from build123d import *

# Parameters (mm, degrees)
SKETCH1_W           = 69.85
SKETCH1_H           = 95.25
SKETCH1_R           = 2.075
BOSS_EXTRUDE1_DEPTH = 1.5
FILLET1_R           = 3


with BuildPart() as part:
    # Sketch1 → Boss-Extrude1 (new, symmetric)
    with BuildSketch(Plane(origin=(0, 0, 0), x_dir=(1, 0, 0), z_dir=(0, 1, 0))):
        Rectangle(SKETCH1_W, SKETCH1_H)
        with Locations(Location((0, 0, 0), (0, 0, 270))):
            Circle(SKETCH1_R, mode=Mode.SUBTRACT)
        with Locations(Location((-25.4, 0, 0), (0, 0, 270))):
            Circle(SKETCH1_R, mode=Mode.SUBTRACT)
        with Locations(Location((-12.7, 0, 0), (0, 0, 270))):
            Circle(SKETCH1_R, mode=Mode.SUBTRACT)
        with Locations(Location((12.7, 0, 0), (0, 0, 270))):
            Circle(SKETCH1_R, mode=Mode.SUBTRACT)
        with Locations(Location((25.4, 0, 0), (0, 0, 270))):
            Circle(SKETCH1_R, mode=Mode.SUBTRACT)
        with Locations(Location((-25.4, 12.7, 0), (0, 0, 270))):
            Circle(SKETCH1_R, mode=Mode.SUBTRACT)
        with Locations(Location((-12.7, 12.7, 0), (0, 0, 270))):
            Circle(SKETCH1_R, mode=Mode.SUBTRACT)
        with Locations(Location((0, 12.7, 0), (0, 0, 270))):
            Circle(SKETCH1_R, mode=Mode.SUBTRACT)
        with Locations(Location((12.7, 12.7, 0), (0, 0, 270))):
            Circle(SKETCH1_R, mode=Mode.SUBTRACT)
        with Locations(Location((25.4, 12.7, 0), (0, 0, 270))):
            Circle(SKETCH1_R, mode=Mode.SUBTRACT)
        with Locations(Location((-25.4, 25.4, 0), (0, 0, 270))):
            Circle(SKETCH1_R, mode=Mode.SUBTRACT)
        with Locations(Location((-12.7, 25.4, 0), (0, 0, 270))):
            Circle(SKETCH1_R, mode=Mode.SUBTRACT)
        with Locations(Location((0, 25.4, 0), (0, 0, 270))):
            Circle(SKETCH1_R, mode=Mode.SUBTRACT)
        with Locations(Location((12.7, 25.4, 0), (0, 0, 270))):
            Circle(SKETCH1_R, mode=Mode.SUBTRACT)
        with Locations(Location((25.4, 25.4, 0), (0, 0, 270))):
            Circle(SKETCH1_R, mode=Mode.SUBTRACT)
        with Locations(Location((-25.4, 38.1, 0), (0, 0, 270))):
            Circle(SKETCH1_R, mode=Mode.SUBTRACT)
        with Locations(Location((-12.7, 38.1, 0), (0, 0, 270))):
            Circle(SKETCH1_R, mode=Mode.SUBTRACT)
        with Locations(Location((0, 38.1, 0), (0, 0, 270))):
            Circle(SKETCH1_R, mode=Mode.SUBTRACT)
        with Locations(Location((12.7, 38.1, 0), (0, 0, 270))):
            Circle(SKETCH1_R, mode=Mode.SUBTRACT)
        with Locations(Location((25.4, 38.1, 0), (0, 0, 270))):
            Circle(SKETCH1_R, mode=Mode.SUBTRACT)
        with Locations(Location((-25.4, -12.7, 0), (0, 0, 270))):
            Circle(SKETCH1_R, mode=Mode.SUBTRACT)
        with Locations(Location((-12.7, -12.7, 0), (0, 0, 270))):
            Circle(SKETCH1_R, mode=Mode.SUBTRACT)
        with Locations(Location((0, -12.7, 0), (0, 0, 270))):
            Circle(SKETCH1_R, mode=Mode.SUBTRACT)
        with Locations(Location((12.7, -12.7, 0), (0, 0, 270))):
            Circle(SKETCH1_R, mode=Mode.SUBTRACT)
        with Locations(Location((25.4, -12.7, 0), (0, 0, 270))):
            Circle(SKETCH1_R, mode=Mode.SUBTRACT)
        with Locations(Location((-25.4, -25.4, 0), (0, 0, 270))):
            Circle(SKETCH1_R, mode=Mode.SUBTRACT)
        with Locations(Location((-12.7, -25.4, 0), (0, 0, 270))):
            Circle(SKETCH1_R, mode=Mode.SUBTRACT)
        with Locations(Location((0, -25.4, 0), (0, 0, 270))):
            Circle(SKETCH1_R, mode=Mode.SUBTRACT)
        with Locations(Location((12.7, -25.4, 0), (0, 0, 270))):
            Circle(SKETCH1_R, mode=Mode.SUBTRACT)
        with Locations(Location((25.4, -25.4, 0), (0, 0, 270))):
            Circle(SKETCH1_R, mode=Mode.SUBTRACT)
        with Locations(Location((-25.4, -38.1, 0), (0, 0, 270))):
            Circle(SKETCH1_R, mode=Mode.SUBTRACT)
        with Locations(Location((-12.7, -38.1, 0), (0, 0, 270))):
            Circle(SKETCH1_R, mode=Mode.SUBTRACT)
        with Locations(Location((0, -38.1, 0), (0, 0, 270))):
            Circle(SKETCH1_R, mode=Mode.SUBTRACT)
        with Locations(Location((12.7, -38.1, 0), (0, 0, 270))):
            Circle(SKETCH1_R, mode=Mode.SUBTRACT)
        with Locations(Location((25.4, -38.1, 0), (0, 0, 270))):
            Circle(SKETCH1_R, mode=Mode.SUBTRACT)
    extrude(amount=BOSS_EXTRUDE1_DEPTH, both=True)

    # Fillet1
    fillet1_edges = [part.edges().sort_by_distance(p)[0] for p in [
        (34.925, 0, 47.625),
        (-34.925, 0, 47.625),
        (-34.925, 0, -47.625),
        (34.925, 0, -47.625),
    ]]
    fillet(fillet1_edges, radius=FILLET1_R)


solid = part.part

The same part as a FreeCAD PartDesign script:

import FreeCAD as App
import Part
import Sketcher
from FreeCAD import Vector


def edges_at(feature, points):
    """Names of the edges that pass closest to the given points."""
    edges = feature.Shape.Edges
    near = lambda p: min(range(len(edges)), key=lambda i: edges[i].distToShape(Part.Vertex(*p))[0])
    return sorted({f"Edge{near(p) + 1}" for p in points})

doc = App.newDocument("Part")
body = doc.addObject("PartDesign::Body", "Body")

# Sketch on XZ plane
sketch1 = doc.addObject("Sketcher::SketchObject", "Sketch")
body.addObject(sketch1)
sketch1.AttachmentSupport = (doc.XZ_Plane, [""])
sketch1.MapMode = "FlatFace"
sketch1.addGeometry([
    Part.LineSegment(Vector(-34.9, -47.6, 0), Vector(-34.9, 47.6, 0)),  # 0
    Part.LineSegment(Vector(-34.9, 47.6, 0), Vector(34.9, 47.6, 0)),  # 1
    Part.LineSegment(Vector(34.9, 47.6, 0), Vector(34.9, -47.6, 0)),  # 2
    Part.LineSegment(Vector(34.9, -47.6, 0), Vector(-34.9, -47.6, 0)),  # 3
    Part.Circle(Vector(-25.4, 38.1, 0), Vector(0, 0, 1), 2.1),  # 4
    Part.Circle(Vector(-25.4, 25.4, 0), Vector(0, 0, 1), 2.1),  # 5
    Part.Circle(Vector(-12.7, 38.1, 0), Vector(0, 0, 1), 2.1),  # 6
    Part.Circle(Vector(-12.7, 25.4, 0), Vector(0, 0, 1), 2.1),  # 7
    Part.Circle(Vector(-25.4, 12.7, 0), Vector(0, 0, 1), 2.1),  # 8
    Part.Circle(Vector(-12.7, 12.7, 0), Vector(0, 0, 1), 2.1),  # 9
    Part.Circle(Vector(0, 38.1, 0), Vector(0, 0, 1), 2.1),  # 10
    Part.Circle(Vector(12.7, 38.1, 0), Vector(0, 0, 1), 2.1),  # 11
    Part.Circle(Vector(0, 25.4, 0), Vector(0, 0, 1), 2.1),  # 12
    Part.Circle(Vector(12.7, 25.4, 0), Vector(0, 0, 1), 2.1),  # 13
    Part.Circle(Vector(25.4, 38.1, 0), Vector(0, 0, 1), 2.1),  # 14
    Part.Circle(Vector(25.4, 25.4, 0), Vector(0, 0, 1), 2.1),  # 15
    Part.Circle(Vector(0, 12.7, 0), Vector(0, 0, 1), 2.1),  # 16
    Part.Circle(Vector(12.7, 12.7, 0), Vector(0, 0, 1), 2.1),  # 17
    Part.Circle(Vector(25.4, 12.7, 0), Vector(0, 0, 1), 2.1),  # 18
    Part.Circle(Vector(-25.4, 0, 0), Vector(0, 0, 1), 2.1),  # 19
    Part.Circle(Vector(-25.4, -12.7, 0), Vector(0, 0, 1), 2.1),  # 20
    Part.Circle(Vector(-12.7, 0, 0), Vector(0, 0, 1), 2.1),  # 21
    Part.Circle(Vector(-12.7, -12.7, 0), Vector(0, 0, 1), 2.1),  # 22
    Part.Circle(Vector(-25.4, -25.4, 0), Vector(0, 0, 1), 2.1),  # 23
    Part.Circle(Vector(-25.4, -38.1, 0), Vector(0, 0, 1), 2.1),  # 24
    Part.Circle(Vector(-12.7, -25.4, 0), Vector(0, 0, 1), 2.1),  # 25
    Part.Circle(Vector(-12.7, -38.1, 0), Vector(0, 0, 1), 2.1),  # 26
    Part.Circle(Vector(0, 0, 0), Vector(0, 0, 1), 2.1),  # 27
    Part.Circle(Vector(12.7, 0, 0), Vector(0, 0, 1), 2.1),  # 28
    Part.Circle(Vector(0, -12.7, 0), Vector(0, 0, 1), 2.1),  # 29
    Part.Circle(Vector(12.7, -12.7, 0), Vector(0, 0, 1), 2.1),  # 30
    Part.Circle(Vector(25.4, 0, 0), Vector(0, 0, 1), 2.1),  # 31
    Part.Circle(Vector(25.4, -12.7, 0), Vector(0, 0, 1), 2.1),  # 32
    Part.Circle(Vector(0, -25.4, 0), Vector(0, 0, 1), 2.1),  # 33
    Part.Circle(Vector(12.7, -25.4, 0), Vector(0, 0, 1), 2.1),  # 34
    Part.Circle(Vector(0, -38.1, 0), Vector(0, 0, 1), 2.1),  # 35
    Part.Circle(Vector(12.7, -38.1, 0), Vector(0, 0, 1), 2.1),  # 36
    Part.Circle(Vector(25.4, -25.4, 0), Vector(0, 0, 1), 2.1),  # 37
    Part.Circle(Vector(25.4, -38.1, 0), Vector(0, 0, 1), 2.1),  # 38
], False)
sketch1.addConstraint([
    Sketcher.Constraint("Coincident", 0, 2, 1, 1),
    Sketcher.Constraint("Coincident", 1, 2, 2, 1),
    Sketcher.Constraint("Coincident", 2, 2, 3, 1),
    Sketcher.Constraint("Coincident", 3, 2, 0, 1),
    Sketcher.Constraint("Vertical", 0),
    Sketcher.Constraint("Horizontal", 1),
    Sketcher.Constraint("Vertical", 2),
    Sketcher.Constraint("Horizontal", 3),
    Sketcher.Constraint("Coincident", 27, 3, -1, 1),
    Sketcher.Constraint("Equal", 4, 5),
    Sketcher.Constraint("Equal", 5, 6),
    Sketcher.Constraint("Equal", 6, 7),
    Sketcher.Constraint("Equal", 7, 8),
    Sketcher.Constraint("Equal", 8, 9),
    Sketcher.Constraint("Equal", 9, 10),
    Sketcher.Constraint("Equal", 10, 11),
    Sketcher.Constraint("Equal", 11, 12),
    Sketcher.Constraint("Equal", 12, 13),
    Sketcher.Constraint("Equal", 13, 14),
    Sketcher.Constraint("Equal", 14, 15),
    Sketcher.Constraint("Equal", 15, 16),
    Sketcher.Constraint("Equal", 16, 17),
    Sketcher.Constraint("Equal", 17, 18),
    Sketcher.Constraint("Equal", 18, 19),
    Sketcher.Constraint("Equal", 19, 20),
    Sketcher.Constraint("Equal", 20, 21),
    Sketcher.Constraint("Equal", 21, 22),
    Sketcher.Constraint("Equal", 22, 23),
    Sketcher.Constraint("Equal", 23, 24),
    Sketcher.Constraint("Equal", 24, 25),
    Sketcher.Constraint("Equal", 25, 26),
    Sketcher.Constraint("Equal", 26, 27),
    Sketcher.Constraint("Equal", 27, 28),
    Sketcher.Constraint("Equal", 28, 29),
    Sketcher.Constraint("Equal", 29, 30),
    Sketcher.Constraint("Equal", 30, 31),
    Sketcher.Constraint("Equal", 31, 32),
    Sketcher.Constraint("Equal", 32, 33),
    Sketcher.Constraint("Equal", 33, 34),
    Sketcher.Constraint("Equal", 34, 35),
    Sketcher.Constraint("Equal", 35, 36),
    Sketcher.Constraint("Equal", 36, 37),
    Sketcher.Constraint("Equal", 37, 38),
    Sketcher.Constraint("Symmetric", 18, 3, 20, 3, -1, 1),
    Sketcher.Constraint("Symmetric", 17, 3, 22, 3, -1, 1),
    Sketcher.Constraint("Symmetric", 15, 3, 23, 3, -1, 1),
    Sketcher.Constraint("Symmetric", 14, 3, 24, 3, -1, 1),
    Sketcher.Constraint("Symmetric", 13, 3, 25, 3, -1, 1),
    Sketcher.Constraint("Symmetric", 11, 3, 26, 3, -1, 1),
    Sketcher.Constraint("Symmetric", 21, 3, 28, 3, -1, 1),
    Sketcher.Constraint("Symmetric", 16, 3, 29, 3, -1, 1),
    Sketcher.Constraint("Symmetric", 9, 3, 30, 3, -1, 1),
    Sketcher.Constraint("Symmetric", 19, 3, 31, 3, -1, 1),
    Sketcher.Constraint("Symmetric", 8, 3, 32, 3, -1, 1),
    Sketcher.Constraint("Symmetric", 12, 3, 33, 3, -1, 1),
    Sketcher.Constraint("Symmetric", 7, 3, 34, 3, -1, 1),
    Sketcher.Constraint("Symmetric", 10, 3, 35, 3, -1, 1),
    Sketcher.Constraint("Symmetric", 6, 3, 36, 3, -1, 1),
    Sketcher.Constraint("Symmetric", 5, 3, 37, 3, -1, 1),
    Sketcher.Constraint("Symmetric", 4, 3, 38, 3, -1, 1),
    Sketcher.Constraint("Symmetric", 0, 2, 2, 2, -1, 1),
    Sketcher.Constraint("Symmetric", 6, 3, 11, 3, -2),
    Sketcher.Constraint("Symmetric", 7, 3, 13, 3, -2),
    Sketcher.Constraint("Symmetric", 4, 3, 14, 3, -2),
    Sketcher.Constraint("Symmetric", 5, 3, 15, 3, -2),
    Sketcher.Constraint("Symmetric", 9, 3, 17, 3, -2),
    Sketcher.Constraint("Symmetric", 8, 3, 18, 3, -2),
    Sketcher.Constraint("PointOnObject", 10, 3, -2),
    Sketcher.Constraint("PointOnObject", 12, 3, -2),
    Sketcher.Constraint("PointOnObject", 16, 3, -2),
    Sketcher.Constraint("PointOnObject", 19, 3, -1),
    Sketcher.Constraint("PointOnObject", 21, 3, -1),
    Sketcher.Constraint("Horizontal", 4, 3, 6, 3),
    Sketcher.Constraint("Horizontal", 5, 3, 7, 3),
    Sketcher.Constraint("Horizontal", 8, 3, 9, 3),
    Sketcher.Constraint("Horizontal", 6, 3, 10, 3),
    Sketcher.Constraint("Horizontal", 7, 3, 12, 3),
    Sketcher.Constraint("Horizontal", 9, 3, 16, 3),
    Sketcher.Constraint("Vertical", 4, 3, 5, 3),
    Sketcher.Constraint("Vertical", 6, 3, 7, 3),
    Sketcher.Constraint("Vertical", 5, 3, 8, 3),
    Sketcher.Constraint("Vertical", 7, 3, 9, 3),
    Sketcher.Constraint("Vertical", 8, 3, 19, 3),
    Sketcher.Constraint("Vertical", 9, 3, 21, 3),
    Sketcher.Constraint("Diameter", 4, 4.15),
    Sketcher.Constraint("DistanceX", 1, 1, 1, 2, 69.85),
    Sketcher.Constraint("DistanceY", 0, 1, 0, 2, 95.25),
    Sketcher.Constraint("DistanceX", 4, 3, -1, 1, 25.4),
    Sketcher.Constraint("DistanceY", -1, 1, 4, 3, 38.1),
    Sketcher.Constraint("DistanceY", -1, 1, 5, 3, 25.4),
    Sketcher.Constraint("DistanceX", 6, 3, -1, 1, 12.7),
    Sketcher.Constraint("DistanceY", -1, 1, 8, 3, 12.7),
])
pad1 = doc.addObject("PartDesign::Pad", "Pad")
body.addObject(pad1)
pad1.Profile = sketch1
pad1.Length = 3
pad1.Midplane = True
doc.recompute()

fillet = doc.addObject("PartDesign::Fillet", "Fillet")
body.addObject(fillet)
fillet.Base = (pad1, edges_at(pad1, [
    (34.925, 0, 47.625),
    (-34.925, 0, 47.625),
    (-34.925, 0, -47.625),
    (34.925, 0, -47.625),
]))
fillet.Radius = 3

doc.recompute()
